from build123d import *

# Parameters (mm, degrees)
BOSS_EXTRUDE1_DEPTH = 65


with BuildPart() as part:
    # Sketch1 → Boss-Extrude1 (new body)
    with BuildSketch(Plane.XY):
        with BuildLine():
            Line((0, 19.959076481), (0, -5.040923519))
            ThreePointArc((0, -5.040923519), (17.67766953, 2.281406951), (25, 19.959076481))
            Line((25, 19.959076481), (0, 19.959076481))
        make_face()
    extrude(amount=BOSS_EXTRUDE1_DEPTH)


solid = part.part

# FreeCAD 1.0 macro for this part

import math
import FreeCAD as App
import Part
import Sketcher
from FreeCAD import Vector
Q = App.Units.Quantity

doc = App.newDocument("Part")
body = doc.addObject("PartDesign::Body", "Body")

# Sketch on XY plane
sketch1 = body.newObject("Sketcher::SketchObject", "Sketch")
sketch1.AttachmentSupport = (doc.getObject("XY_Plane"), [""])
sketch1.MapMode = "FlatFace"
sketch1.addGeometry(Part.LineSegment(Vector(0, 20, 0), Vector(0, -5, 0)), False)
sketch1.addGeometry(Part.ArcOfCircle(Part.Circle(Vector(0, 20, 0), Vector(0, 0, 1), 25), math.radians(-90), math.radians(0)), False)
sketch1.addGeometry(Part.LineSegment(Vector(25, 20, 0), Vector(0, 20, 0)), False)
sketch1.addConstraint(Sketcher.Constraint("Coincident", 0, 2, 1, 1))
sketch1.addConstraint(Sketcher.Constraint("Coincident", 1, 2, 2, 1))
sketch1.addConstraint(Sketcher.Constraint("Coincident", 2, 2, 0, 1))
sketch1.addConstraint(Sketcher.Constraint("Vertical", 0))
sketch1.addConstraint(Sketcher.Constraint("Horizontal", 2))
sketch1.addConstraint(Sketcher.Constraint("Coincident", 2, 2, 1, 3))
sketch1.addConstraint(Sketcher.Constraint("PointOnObject", 1, 3, -2))
sketch1.addConstraint(Sketcher.Constraint("Radius", 1, Q("25 mm")))
sketch1.addConstraint(Sketcher.Constraint("DistanceY", -1, 1, 1, 3, Q("19.959076 mm")))
pad1 = body.newObject("PartDesign::Pad", "Pad")
pad1.Profile = sketch1
pad1.Length = 65

doc.recompute()
